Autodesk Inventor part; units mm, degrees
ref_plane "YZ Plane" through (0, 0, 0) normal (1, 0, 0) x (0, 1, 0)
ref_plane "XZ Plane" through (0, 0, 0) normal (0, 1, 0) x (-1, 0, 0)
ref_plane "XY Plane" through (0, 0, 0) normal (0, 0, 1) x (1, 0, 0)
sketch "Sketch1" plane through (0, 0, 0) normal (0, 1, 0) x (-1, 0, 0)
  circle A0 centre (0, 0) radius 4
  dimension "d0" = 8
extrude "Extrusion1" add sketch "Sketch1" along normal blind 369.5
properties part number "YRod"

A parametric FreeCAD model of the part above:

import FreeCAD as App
import Part
import Sketcher
from FreeCAD import Vector

doc = App.newDocument("Part")
body = doc.addObject("PartDesign::Body", "Body")

# Sketch on XZ plane
sketch1 = doc.addObject("Sketcher::SketchObject", "Sketch")
body.addObject(sketch1)
sketch1.AttachmentSupport = (doc.XZ_Plane, [""])
sketch1.MapMode = "FlatFace"
sketch1.addGeometry(Part.Circle(Vector(0, 0, 0), Vector(0, 0, 1), 4), False)
sketch1.addConstraint([
    Sketcher.Constraint("Coincident", 0, 3, -1, 1),
    Sketcher.Constraint("Diameter", 0, 8.0),
])
pad1 = doc.addObject("PartDesign::Pad", "Pad")
body.addObject(pad1)
pad1.Profile = sketch1
pad1.Length = 369.5
pad1.Reversed = True

doc.recompute()
